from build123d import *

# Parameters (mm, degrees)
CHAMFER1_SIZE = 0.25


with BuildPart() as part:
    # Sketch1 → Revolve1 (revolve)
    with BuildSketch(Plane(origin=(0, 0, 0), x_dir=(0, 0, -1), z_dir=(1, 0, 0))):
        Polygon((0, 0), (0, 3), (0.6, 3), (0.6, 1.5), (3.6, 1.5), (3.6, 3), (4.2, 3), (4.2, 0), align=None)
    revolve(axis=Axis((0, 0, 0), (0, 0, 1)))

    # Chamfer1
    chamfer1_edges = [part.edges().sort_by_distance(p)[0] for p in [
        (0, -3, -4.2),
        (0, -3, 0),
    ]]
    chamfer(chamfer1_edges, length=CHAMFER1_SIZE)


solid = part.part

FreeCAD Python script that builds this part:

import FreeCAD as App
import Part
import Sketcher

V = App.Vector


def edges_at(feature, points):
    """Names of the edges that pass closest to the given points."""
    edges = feature.Shape.Edges
    near = lambda p: min(range(len(edges)), key=lambda i: edges[i].distToShape(Part.Vertex(*p))[0])
    return sorted({f"Edge{near(p) + 1}" for p in points})

doc = App.newDocument("Part")
body = doc.addObject("PartDesign::Body", "Body")

sketch1 = doc.addObject("Sketcher::SketchObject", "Sketch")
body.addObject(sketch1)
sketch1.AttachmentSupport = (doc.YZ_Plane, [""])
sketch1.MapMode = "FlatFace"
sketch1.addGeometry([
    Part.LineSegment(V(3, 0, 0), V(0, 0, 0)),
    Part.LineSegment(V(0, 0, 0), V(0, -4.2, 0)),
    Part.LineSegment(V(0, -4.2, 0), V(3, -4.2, 0)),
    Part.LineSegment(V(3, -4.2, 0), V(3, -3.6, 0)),
    Part.LineSegment(V(3, -3.6, 0), V(1.5, -3.6, 0)),
    Part.LineSegment(V(1.5, -3.6, 0), V(1.5, -0.6, 0)),
    Part.LineSegment(V(1.5, -0.6, 0), V(3, -0.6, 0)),
    Part.LineSegment(V(3, -0.6, 0), V(3, 0, 0)),
], False)
sketch1.addConstraint([
    Sketcher.Constraint("Coincident", 0, 2, 1, 1),
    Sketcher.Constraint("Coincident", 1, 2, 2, 1),
    Sketcher.Constraint("Coincident", 2, 2, 3, 1),
    Sketcher.Constraint("Coincident", 3, 2, 4, 1),
    Sketcher.Constraint("Coincident", 4, 2, 5, 1),
    Sketcher.Constraint("Coincident", 5, 2, 6, 1),
    Sketcher.Constraint("Coincident", 6, 2, 7, 1),
    Sketcher.Constraint("Coincident", 7, 2, 0, 1),
    Sketcher.Constraint("Horizontal", 0),
    Sketcher.Constraint("Vertical", 1),
    Sketcher.Constraint("Horizontal", 2),
    Sketcher.Constraint("Vertical", 3),
    Sketcher.Constraint("Horizontal", 4),
    Sketcher.Constraint("Vertical", 5),
    Sketcher.Constraint("Horizontal", 6),
    Sketcher.Constraint("Vertical", 7),
    Sketcher.Constraint("Coincident", 0, 2, -1, 1),
    Sketcher.Constraint("Vertical", 3, 2, 6, 2),
    Sketcher.Constraint("Equal", 2, 5),
    Sketcher.Constraint("Equal", 3, 7),
    Sketcher.Constraint("DistanceX", 0, 2, 0, 1, 3.0),
    Sketcher.Constraint("DistanceX", 4, 2, 4, 1, 1.5),
    Sketcher.Constraint("DistanceY", 1, 2, 1, 1, 4.2),
])
revolution = doc.addObject("PartDesign::Revolution", "Revolution")
body.addObject(revolution)
revolution.Profile = sketch1
revolution.ReferenceAxis = (sketch1, ["V_Axis"])
revolution.Angle = 360
doc.recompute()

chamfer = doc.addObject("PartDesign::Chamfer", "Chamfer")
body.addObject(chamfer)
chamfer.Base = (revolution, edges_at(revolution, [(0, -3, -4.2), (0, -3, 0)]))
chamfer.Size = 0.25

doc.recompute()
